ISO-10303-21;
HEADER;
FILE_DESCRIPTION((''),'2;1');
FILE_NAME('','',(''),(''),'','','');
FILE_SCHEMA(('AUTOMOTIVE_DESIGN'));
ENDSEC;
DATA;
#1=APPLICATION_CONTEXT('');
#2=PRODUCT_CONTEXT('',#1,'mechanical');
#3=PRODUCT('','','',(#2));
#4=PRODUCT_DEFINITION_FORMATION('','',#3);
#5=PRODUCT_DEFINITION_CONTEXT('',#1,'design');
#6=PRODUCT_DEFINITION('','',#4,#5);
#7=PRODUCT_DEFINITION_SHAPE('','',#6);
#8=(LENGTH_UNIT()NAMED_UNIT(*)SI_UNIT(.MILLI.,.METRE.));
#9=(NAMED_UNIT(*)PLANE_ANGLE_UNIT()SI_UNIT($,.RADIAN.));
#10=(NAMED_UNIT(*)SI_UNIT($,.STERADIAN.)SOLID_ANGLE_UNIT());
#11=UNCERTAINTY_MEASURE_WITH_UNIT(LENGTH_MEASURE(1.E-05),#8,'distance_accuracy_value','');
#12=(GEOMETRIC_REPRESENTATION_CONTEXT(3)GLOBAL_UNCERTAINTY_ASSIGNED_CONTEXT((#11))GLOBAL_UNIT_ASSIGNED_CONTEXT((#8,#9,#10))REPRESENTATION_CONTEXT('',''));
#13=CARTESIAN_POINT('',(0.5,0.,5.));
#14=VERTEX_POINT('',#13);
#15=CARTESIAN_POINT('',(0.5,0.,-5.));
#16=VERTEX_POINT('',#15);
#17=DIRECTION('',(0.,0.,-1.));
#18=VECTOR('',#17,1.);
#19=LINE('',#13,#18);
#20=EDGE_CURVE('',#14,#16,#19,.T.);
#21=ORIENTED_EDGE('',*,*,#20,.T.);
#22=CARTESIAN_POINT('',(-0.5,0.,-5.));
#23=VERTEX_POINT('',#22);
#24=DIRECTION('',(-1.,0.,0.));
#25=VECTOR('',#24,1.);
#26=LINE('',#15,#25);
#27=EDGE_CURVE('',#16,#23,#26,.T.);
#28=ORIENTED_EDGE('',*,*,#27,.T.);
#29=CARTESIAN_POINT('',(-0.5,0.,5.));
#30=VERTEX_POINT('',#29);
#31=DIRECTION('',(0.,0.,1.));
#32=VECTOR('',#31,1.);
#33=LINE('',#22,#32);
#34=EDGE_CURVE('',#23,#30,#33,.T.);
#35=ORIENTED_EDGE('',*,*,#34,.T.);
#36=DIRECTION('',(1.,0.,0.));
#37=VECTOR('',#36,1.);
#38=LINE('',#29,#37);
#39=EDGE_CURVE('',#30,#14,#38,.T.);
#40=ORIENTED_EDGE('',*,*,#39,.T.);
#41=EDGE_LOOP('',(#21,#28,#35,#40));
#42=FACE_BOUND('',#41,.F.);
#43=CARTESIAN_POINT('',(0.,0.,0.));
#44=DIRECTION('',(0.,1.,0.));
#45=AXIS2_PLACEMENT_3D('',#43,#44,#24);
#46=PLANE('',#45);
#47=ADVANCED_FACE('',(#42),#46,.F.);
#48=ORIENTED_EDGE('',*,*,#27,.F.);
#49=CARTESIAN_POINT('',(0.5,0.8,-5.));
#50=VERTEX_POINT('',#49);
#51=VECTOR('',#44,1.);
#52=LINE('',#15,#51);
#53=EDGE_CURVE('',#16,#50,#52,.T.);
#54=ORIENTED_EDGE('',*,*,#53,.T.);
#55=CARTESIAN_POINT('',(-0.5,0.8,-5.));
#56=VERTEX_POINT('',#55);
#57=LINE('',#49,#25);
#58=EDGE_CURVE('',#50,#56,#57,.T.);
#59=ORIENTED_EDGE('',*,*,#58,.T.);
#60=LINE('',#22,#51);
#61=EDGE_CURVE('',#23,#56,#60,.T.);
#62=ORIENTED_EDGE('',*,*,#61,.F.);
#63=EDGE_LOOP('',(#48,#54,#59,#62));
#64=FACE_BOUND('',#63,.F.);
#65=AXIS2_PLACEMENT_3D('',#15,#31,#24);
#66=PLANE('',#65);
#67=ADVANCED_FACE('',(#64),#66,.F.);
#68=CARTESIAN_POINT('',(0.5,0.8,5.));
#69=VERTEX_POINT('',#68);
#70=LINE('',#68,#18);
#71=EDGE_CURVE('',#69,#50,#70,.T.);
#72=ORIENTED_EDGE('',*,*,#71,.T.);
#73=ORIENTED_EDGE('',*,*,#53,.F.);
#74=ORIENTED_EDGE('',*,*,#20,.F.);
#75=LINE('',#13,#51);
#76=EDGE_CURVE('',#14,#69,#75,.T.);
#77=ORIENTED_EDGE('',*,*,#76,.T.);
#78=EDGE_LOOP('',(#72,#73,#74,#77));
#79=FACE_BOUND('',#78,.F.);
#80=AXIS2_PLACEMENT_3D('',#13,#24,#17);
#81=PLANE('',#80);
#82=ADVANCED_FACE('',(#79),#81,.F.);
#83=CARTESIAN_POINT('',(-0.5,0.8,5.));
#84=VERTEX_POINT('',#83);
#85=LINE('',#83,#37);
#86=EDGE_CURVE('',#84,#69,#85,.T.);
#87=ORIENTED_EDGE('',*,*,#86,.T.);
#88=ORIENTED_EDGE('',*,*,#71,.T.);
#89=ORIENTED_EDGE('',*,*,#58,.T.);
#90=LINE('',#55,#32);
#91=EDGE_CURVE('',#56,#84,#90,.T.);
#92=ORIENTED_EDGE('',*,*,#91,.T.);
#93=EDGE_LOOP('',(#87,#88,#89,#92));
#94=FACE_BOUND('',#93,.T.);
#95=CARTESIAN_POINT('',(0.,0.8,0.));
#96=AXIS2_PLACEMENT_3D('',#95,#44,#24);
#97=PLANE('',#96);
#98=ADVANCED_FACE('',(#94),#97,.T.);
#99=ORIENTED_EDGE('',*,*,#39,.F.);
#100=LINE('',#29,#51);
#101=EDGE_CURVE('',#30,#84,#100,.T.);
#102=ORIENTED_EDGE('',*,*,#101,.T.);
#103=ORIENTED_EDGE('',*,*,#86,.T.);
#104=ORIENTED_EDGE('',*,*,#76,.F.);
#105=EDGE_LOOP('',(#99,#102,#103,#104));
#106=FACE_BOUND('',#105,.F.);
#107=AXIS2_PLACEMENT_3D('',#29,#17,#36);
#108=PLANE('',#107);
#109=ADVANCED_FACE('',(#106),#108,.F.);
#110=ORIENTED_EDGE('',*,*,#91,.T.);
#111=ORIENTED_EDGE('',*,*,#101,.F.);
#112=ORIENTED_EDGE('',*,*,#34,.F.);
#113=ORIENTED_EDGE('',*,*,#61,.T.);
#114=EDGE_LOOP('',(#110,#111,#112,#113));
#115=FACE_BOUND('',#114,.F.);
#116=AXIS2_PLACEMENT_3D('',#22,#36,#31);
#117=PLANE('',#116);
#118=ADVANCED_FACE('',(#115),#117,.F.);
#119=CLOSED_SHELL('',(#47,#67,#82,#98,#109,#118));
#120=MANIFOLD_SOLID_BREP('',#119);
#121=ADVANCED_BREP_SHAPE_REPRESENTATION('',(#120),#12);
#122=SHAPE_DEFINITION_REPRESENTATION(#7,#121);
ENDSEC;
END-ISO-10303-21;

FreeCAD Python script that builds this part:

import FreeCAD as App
import Part
import Sketcher
from FreeCAD import Vector
Q = App.Units.Quantity

doc = App.newDocument("Part")
body = doc.addObject("PartDesign::Body", "Body")

# Sketch on XZ plane
sketch1 = body.newObject("Sketcher::SketchObject", "Sketch")
sketch1.AttachmentSupport = (doc.getObject("XZ_Plane"), [""])
sketch1.MapMode = "FlatFace"
sketch1.addGeometry([
    Part.LineSegment(Vector(-0.5, -5, 0), Vector(-0.5, 5, 0)),
    Part.LineSegment(Vector(-0.5, 5, 0), Vector(0.5, 5, 0)),
    Part.LineSegment(Vector(0.5, 5, 0), Vector(0.5, -5, 0)),
    Part.LineSegment(Vector(0.5, -5, 0), Vector(-0.5, -5, 0)),
], False)
sketch1.addConstraint([
    Sketcher.Constraint("Coincident", 0, 2, 1, 1),
    Sketcher.Constraint("Coincident", 1, 2, 2, 1),
    Sketcher.Constraint("Coincident", 2, 2, 3, 1),
    Sketcher.Constraint("Coincident", 3, 2, 0, 1),
    Sketcher.Constraint("Vertical", 0),
    Sketcher.Constraint("Horizontal", 1),
    Sketcher.Constraint("Vertical", 2),
    Sketcher.Constraint("Horizontal", 3),
    Sketcher.Constraint("Symmetric", 0, 2, 2, 2, -1, 1),
    Sketcher.Constraint("DistanceX", 1, 1, 1, 2, Q("1 mm")),
    Sketcher.Constraint("DistanceY", 0, 1, 0, 2, Q("10 mm")),
])
pad1 = body.newObject("PartDesign::Pad", "Pad")
pad1.Profile = sketch1
pad1.Length = 0.8
pad1.Reversed = True

doc.recompute()
